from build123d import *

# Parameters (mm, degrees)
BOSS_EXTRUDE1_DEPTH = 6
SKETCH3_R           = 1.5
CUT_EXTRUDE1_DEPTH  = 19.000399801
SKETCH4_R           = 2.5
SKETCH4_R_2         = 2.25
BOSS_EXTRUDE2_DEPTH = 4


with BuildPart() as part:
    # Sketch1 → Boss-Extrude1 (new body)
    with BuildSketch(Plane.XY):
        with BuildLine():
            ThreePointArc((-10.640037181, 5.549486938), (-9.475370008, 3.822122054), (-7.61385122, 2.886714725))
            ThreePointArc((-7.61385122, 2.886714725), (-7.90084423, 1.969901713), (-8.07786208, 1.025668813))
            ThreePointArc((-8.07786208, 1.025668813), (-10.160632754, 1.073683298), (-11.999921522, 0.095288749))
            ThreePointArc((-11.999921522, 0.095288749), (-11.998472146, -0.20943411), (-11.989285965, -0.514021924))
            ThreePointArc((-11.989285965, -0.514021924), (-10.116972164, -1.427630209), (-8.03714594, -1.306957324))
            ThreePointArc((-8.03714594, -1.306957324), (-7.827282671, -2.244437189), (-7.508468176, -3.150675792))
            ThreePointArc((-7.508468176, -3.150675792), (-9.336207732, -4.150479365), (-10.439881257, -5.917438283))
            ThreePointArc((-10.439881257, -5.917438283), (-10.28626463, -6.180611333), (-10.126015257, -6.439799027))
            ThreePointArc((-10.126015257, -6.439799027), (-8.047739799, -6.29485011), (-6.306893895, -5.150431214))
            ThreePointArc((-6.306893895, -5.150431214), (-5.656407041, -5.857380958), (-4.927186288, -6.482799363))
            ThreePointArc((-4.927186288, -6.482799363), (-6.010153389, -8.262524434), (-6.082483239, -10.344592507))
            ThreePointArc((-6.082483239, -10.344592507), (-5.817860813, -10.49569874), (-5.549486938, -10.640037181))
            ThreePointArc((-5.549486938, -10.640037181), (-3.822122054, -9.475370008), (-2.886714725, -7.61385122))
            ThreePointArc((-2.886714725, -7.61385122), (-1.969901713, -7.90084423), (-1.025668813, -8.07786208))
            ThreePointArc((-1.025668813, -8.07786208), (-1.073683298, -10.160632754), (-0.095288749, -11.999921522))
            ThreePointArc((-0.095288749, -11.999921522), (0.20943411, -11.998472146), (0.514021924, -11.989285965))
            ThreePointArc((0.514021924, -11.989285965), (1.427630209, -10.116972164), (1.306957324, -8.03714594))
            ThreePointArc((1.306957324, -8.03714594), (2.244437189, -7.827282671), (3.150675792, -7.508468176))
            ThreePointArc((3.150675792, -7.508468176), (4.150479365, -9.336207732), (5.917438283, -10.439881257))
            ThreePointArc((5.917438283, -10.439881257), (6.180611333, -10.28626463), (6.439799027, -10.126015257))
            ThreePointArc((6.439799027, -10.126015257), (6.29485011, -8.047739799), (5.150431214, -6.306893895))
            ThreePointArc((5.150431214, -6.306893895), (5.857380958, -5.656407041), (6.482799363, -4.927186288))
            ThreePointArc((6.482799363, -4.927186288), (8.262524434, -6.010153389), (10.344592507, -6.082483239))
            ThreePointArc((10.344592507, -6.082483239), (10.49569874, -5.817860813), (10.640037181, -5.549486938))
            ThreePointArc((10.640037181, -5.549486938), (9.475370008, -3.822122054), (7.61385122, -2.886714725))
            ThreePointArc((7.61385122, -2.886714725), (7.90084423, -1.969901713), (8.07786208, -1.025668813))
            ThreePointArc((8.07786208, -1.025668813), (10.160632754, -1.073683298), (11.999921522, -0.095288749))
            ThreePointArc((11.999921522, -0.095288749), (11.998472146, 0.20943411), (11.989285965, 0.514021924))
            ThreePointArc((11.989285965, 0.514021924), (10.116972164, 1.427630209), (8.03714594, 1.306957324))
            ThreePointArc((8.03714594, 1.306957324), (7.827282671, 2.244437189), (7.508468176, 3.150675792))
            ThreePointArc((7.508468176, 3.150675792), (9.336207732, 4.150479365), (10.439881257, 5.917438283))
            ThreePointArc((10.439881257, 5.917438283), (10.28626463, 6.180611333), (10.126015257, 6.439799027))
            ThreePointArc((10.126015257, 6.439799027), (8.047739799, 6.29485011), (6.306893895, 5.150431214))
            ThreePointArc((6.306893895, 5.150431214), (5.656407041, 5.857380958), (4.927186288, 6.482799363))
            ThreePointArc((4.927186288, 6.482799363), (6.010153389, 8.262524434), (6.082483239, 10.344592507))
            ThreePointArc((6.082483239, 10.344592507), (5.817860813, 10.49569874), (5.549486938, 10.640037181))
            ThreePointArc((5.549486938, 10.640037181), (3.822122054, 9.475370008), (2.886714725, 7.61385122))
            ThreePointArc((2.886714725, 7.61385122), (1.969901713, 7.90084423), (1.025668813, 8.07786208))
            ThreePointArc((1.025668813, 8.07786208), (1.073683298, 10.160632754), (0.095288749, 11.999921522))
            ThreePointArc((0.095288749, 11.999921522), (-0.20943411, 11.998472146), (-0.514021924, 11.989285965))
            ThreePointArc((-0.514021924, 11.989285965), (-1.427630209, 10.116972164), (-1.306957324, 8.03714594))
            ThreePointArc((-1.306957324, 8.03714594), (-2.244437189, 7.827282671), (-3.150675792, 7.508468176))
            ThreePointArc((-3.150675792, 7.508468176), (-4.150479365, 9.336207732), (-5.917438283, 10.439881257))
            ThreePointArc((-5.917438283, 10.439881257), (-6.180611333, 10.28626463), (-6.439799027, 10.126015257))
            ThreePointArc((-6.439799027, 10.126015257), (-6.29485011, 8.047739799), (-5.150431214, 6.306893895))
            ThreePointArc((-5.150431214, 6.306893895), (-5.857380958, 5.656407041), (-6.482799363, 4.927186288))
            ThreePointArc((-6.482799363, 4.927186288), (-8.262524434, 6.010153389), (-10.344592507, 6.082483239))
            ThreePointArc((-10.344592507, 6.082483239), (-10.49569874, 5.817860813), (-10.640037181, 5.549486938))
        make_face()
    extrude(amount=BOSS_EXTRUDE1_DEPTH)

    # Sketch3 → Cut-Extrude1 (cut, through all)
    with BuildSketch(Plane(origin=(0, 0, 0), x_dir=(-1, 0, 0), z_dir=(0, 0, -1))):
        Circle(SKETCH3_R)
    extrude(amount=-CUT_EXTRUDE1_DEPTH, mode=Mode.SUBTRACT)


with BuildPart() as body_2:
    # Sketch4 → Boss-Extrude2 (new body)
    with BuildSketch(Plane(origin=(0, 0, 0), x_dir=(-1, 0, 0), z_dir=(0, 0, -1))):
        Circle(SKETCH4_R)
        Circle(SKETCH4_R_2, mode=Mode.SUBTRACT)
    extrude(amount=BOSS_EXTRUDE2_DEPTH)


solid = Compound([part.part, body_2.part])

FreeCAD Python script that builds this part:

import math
import FreeCAD as App
import Part
import Sketcher

V = App.Vector

doc = App.newDocument("Part")
body = doc.addObject("PartDesign::Body", "Body")

sketch1 = body.newObject("Sketcher::SketchObject", "Sketch")
sketch1.AttachmentSupport = (doc.getObject("XY_Plane"), [""])
sketch1.MapMode = "FlatFace"
sketch1.addGeometry([
    Part.ArcOfCircle(Part.Circle(V(-6.8, 6.9, 0), V(0, 0, 1), 4.1), math.radians(-161), math.radians(-102)),
    Part.ArcOfCircle(Part.Circle(V(0, 0, 0), V(0, 0, 1), 8.1), math.radians(159.24), math.radians(172.76)),
    Part.ArcOfCircle(Part.Circle(V(-9.2, -2.9, 0), V(0, 0, 1), 4.1), math.radians(74), math.radians(133)),
    Part.ArcOfCircle(Part.Circle(V(0, 0, 0), V(0, 0, 1), 12), math.radians(179.55), math.radians(182.45)),
    Part.ArcOfCircle(Part.Circle(V(-9.3, 2.6, 0), V(0, 0, 1), 4.1), math.radians(-131), math.radians(-72)),
    Part.ArcOfCircle(Part.Circle(V(0, 0, 0), V(0, 0, 1), 8.1), math.radians(-170.76), math.radians(-157.24)),
    Part.ArcOfCircle(Part.Circle(V(-6.5, -7.1, 0), V(0, 0, 1), 4.1), math.radians(104), math.radians(163)),
    Part.ArcOfCircle(Part.Circle(V(0, 0, 0), V(0, 0, 1), 12), math.radians(-150.45), math.radians(-147.55)),
    Part.ArcOfCircle(Part.Circle(V(-9.4, -2.4, 0), V(0, 0, 1), 4.1), math.radians(-101), math.radians(-42)),
    Part.ArcOfCircle(Part.Circle(V(0, 0, 0), V(0, 0, 1), 8.1), math.radians(-140.76), math.radians(-127.24)),
    Part.ArcOfCircle(Part.Circle(V(-2.1, -9.4, 0), V(0, 0, 1), 4.1), math.radians(134), math.radians(193)),
    Part.ArcOfCircle(Part.Circle(V(0, 0, 0), V(0, 0, 1), 12), math.radians(-120.45), math.radians(-117.55)),
    Part.ArcOfCircle(Part.Circle(V(-6.9, -6.8, 0), V(0, 0, 1), 4.1), math.radians(-71), math.radians(-12)),
    Part.ArcOfCircle(Part.Circle(V(0, 0, 0), V(0, 0, 1), 8.1), math.radians(-110.76), math.radians(-97.24)),
    Part.ArcOfCircle(Part.Circle(V(2.9, -9.2, 0), V(0, 0, 1), 4.1), math.radians(164), math.radians(223)),
    Part.ArcOfCircle(Part.Circle(V(0, 0, 0), V(0, 0, 1), 12), math.radians(-90.45), math.radians(-87.55)),
    Part.ArcOfCircle(Part.Circle(V(-2.6, -9.3, 0), V(0, 0, 1), 4.1), math.radians(-41), math.radians(18)),
    Part.ArcOfCircle(Part.Circle(V(0, 0, 0), V(0, 0, 1), 8.1), math.radians(-80.76), math.radians(-67.24)),
    Part.ArcOfCircle(Part.Circle(V(7.1, -6.5, 0), V(0, 0, 1), 4.1), math.radians(-166), math.radians(-107)),
    Part.ArcOfCircle(Part.Circle(V(0, 0, 0), V(0, 0, 1), 12), math.radians(-60.45), math.radians(-57.55)),
    Part.ArcOfCircle(Part.Circle(V(2.4, -9.4, 0), V(0, 0, 1), 4.1), math.radians(-11), math.radians(48)),
    Part.ArcOfCircle(Part.Circle(V(0, 0, 0), V(0, 0, 1), 8.1), math.radians(-50.76), math.radians(-37.24)),
    Part.ArcOfCircle(Part.Circle(V(9.4, -2.1, 0), V(0, 0, 1), 4.1), math.radians(-136), math.radians(-77)),
    Part.ArcOfCircle(Part.Circle(V(0, 0, 0), V(0, 0, 1), 12), math.radians(-30.45), math.radians(-27.55)),
    Part.ArcOfCircle(Part.Circle(V(6.8, -6.9, 0), V(0, 0, 1), 4.1), math.radians(19), math.radians(78)),
    Part.ArcOfCircle(Part.Circle(V(0, 0, 0), V(0, 0, 1), 8.1), math.radians(-20.76), math.radians(-7.24)),
    Part.ArcOfCircle(Part.Circle(V(9.2, 2.9, 0), V(0, 0, 1), 4.1), math.radians(-106), math.radians(-47)),
    Part.ArcOfCircle(Part.Circle(V(0, 0, 0), V(0, 0, 1), 12), math.radians(-0.45), math.radians(2.45)),
    Part.ArcOfCircle(Part.Circle(V(9.3, -2.6, 0), V(0, 0, 1), 4.1), math.radians(49), math.radians(108)),
    Part.ArcOfCircle(Part.Circle(V(0, 0, 0), V(0, 0, 1), 8.1), math.radians(9.24), math.radians(22.76)),
    Part.ArcOfCircle(Part.Circle(V(6.5, 7.1, 0), V(0, 0, 1), 4.1), math.radians(-76), math.radians(-17)),
    Part.ArcOfCircle(Part.Circle(V(0, 0, 0), V(0, 0, 1), 12), math.radians(29.55), math.radians(32.45)),
    Part.ArcOfCircle(Part.Circle(V(9.4, 2.4, 0), V(0, 0, 1), 4.1), math.radians(79), math.radians(138)),
    Part.ArcOfCircle(Part.Circle(V(0, 0, 0), V(0, 0, 1), 8.1), math.radians(39.24), math.radians(52.76)),
    Part.ArcOfCircle(Part.Circle(V(2.1, 9.4, 0), V(0, 0, 1), 4.1), math.radians(-46), math.radians(13)),
    Part.ArcOfCircle(Part.Circle(V(0, 0, 0), V(0, 0, 1), 12), math.radians(59.55), math.radians(62.45)),
    Part.ArcOfCircle(Part.Circle(V(6.9, 6.8, 0), V(0, 0, 1), 4.1), math.radians(109), math.radians(168)),
    Part.ArcOfCircle(Part.Circle(V(0, 0, 0), V(0, 0, 1), 8.1), math.radians(69.24), math.radians(82.76)),
    Part.ArcOfCircle(Part.Circle(V(-2.9, 9.2, 0), V(0, 0, 1), 4.1), math.radians(-16), math.radians(43)),
    Part.ArcOfCircle(Part.Circle(V(0, 0, 0), V(0, 0, 1), 12), math.radians(89.55), math.radians(92.45)),
    Part.ArcOfCircle(Part.Circle(V(2.6, 9.3, 0), V(0, 0, 1), 4.1), math.radians(139), math.radians(198)),
    Part.ArcOfCircle(Part.Circle(V(0, 0, 0), V(0, 0, 1), 8.1), math.radians(99.24), math.radians(112.76)),
    Part.ArcOfCircle(Part.Circle(V(-7.1, 6.5, 0), V(0, 0, 1), 4.1), math.radians(14), math.radians(73)),
    Part.ArcOfCircle(Part.Circle(V(0, 0, 0), V(0, 0, 1), 12), math.radians(119.55), math.radians(122.45)),
    Part.ArcOfCircle(Part.Circle(V(-2.4, 9.4, 0), V(0, 0, 1), 4.1), math.radians(169), math.radians(228)),
    Part.ArcOfCircle(Part.Circle(V(0, 0, 0), V(0, 0, 1), 8.1), math.radians(129.24), math.radians(142.76)),
    Part.ArcOfCircle(Part.Circle(V(-9.4, 2.1, 0), V(0, 0, 1), 4.1), math.radians(44), math.radians(103)),
    Part.ArcOfCircle(Part.Circle(V(0, 0, 0), V(0, 0, 1), 12), math.radians(149.55), math.radians(152.45)),
], False)
sketch1.addConstraint([
    Sketcher.Constraint("Coincident", 0, 2, 1, 1),
    Sketcher.Constraint("Coincident", 1, 2, 2, 1),
    Sketcher.Constraint("Coincident", 2, 2, 3, 1),
    Sketcher.Constraint("Coincident", 3, 2, 4, 1),
    Sketcher.Constraint("Coincident", 4, 2, 5, 1),
    Sketcher.Constraint("Coincident", 5, 2, 6, 1),
    Sketcher.Constraint("Coincident", 6, 2, 7, 1),
    Sketcher.Constraint("Coincident", 7, 2, 8, 1),
    Sketcher.Constraint("Coincident", 8, 2, 9, 1),
    Sketcher.Constraint("Coincident", 9, 2, 10, 1),
    Sketcher.Constraint("Coincident", 10, 2, 11, 1),
    Sketcher.Constraint("Coincident", 11, 2, 12, 1),
    Sketcher.Constraint("Coincident", 12, 2, 13, 1),
    Sketcher.Constraint("Coincident", 13, 2, 14, 1),
    Sketcher.Constraint("Coincident", 14, 2, 15, 1),
    Sketcher.Constraint("Coincident", 15, 2, 16, 1),
    Sketcher.Constraint("Coincident", 16, 2, 17, 1),
    Sketcher.Constraint("Coincident", 17, 2, 18, 1),
    Sketcher.Constraint("Coincident", 18, 2, 19, 1),
    Sketcher.Constraint("Coincident", 19, 2, 20, 1),
    Sketcher.Constraint("Coincident", 20, 2, 21, 1),
    Sketcher.Constraint("Coincident", 21, 2, 22, 1),
    Sketcher.Constraint("Coincident", 22, 2, 23, 1),
    Sketcher.Constraint("Coincident", 23, 2, 24, 1),
    Sketcher.Constraint("Coincident", 24, 2, 25, 1),
    Sketcher.Constraint("Coincident", 25, 2, 26, 1),
    Sketcher.Constraint("Coincident", 26, 2, 27, 1),
    Sketcher.Constraint("Coincident", 27, 2, 28, 1),
    Sketcher.Constraint("Coincident", 28, 2, 29, 1),
    Sketcher.Constraint("Coincident", 29, 2, 30, 1),
    Sketcher.Constraint("Coincident", 30, 2, 31, 1),
    Sketcher.Constraint("Coincident", 31, 2, 32, 1),
    Sketcher.Constraint("Coincident", 32, 2, 33, 1),
    Sketcher.Constraint("Coincident", 33, 2, 34, 1),
    Sketcher.Constraint("Coincident", 34, 2, 35, 1),
    Sketcher.Constraint("Coincident", 35, 2, 36, 1),
    Sketcher.Constraint("Coincident", 36, 2, 37, 1),
    Sketcher.Constraint("Coincident", 37, 2, 38, 1),
    Sketcher.Constraint("Coincident", 38, 2, 39, 1),
    Sketcher.Constraint("Coincident", 39, 2, 40, 1),
    Sketcher.Constraint("Coincident", 40, 2, 41, 1),
    Sketcher.Constraint("Coincident", 41, 2, 42, 1),
    Sketcher.Constraint("Coincident", 42, 2, 43, 1),
    Sketcher.Constraint("Coincident", 43, 2, 44, 1),
    Sketcher.Constraint("Coincident", 44, 2, 45, 1),
    Sketcher.Constraint("Coincident", 45, 2, 46, 1),
    Sketcher.Constraint("Coincident", 46, 2, 47, 1),
    Sketcher.Constraint("Coincident", 47, 2, 0, 1),
    Sketcher.Constraint("Coincident", 1, 3, -1, 1),
    Sketcher.Constraint("Coincident", 3, 3, -1, 1),
    Sketcher.Constraint("Coincident", 5, 3, -1, 1),
    Sketcher.Constraint("Coincident", 7, 3, -1, 1),
    Sketcher.Constraint("Coincident", 9, 3, -1, 1),
    Sketcher.Constraint("Coincident", 11, 3, -1, 1),
    Sketcher.Constraint("Coincident", 13, 3, -1, 1),
    Sketcher.Constraint("Coincident", 15, 3, -1, 1),
    Sketcher.Constraint("Coincident", 17, 3, -1, 1),
    Sketcher.Constraint("Coincident", 19, 3, -1, 1),
    Sketcher.Constraint("Coincident", 21, 3, -1, 1),
    Sketcher.Constraint("Coincident", 23, 3, -1, 1),
    Sketcher.Constraint("Coincident", 25, 3, -1, 1),
    Sketcher.Constraint("Coincident", 27, 3, -1, 1),
    Sketcher.Constraint("Coincident", 29, 3, -1, 1),
    Sketcher.Constraint("Coincident", 31, 3, -1, 1),
    Sketcher.Constraint("Coincident", 33, 3, -1, 1),
    Sketcher.Constraint("Coincident", 35, 3, -1, 1),
    Sketcher.Constraint("Coincident", 37, 3, -1, 1),
    Sketcher.Constraint("Coincident", 39, 3, -1, 1),
    Sketcher.Constraint("Coincident", 41, 3, -1, 1),
    Sketcher.Constraint("Coincident", 43, 3, -1, 1),
    Sketcher.Constraint("Coincident", 45, 3, -1, 1),
    Sketcher.Constraint("Coincident", 47, 3, -1, 1),
    Sketcher.Constraint("Equal", 0, 2),
    Sketcher.Constraint("Equal", 2, 4),
    Sketcher.Constraint("Equal", 1, 5),
    Sketcher.Constraint("Equal", 4, 6),
    Sketcher.Constraint("Equal", 3, 7),
    Sketcher.Constraint("Equal", 6, 8),
    Sketcher.Constraint("Equal", 5, 9),
    Sketcher.Constraint("Equal", 8, 10),
    Sketcher.Constraint("Equal", 7, 11),
    Sketcher.Constraint("Equal", 10, 12),
    Sketcher.Constraint("Equal", 9, 13),
    Sketcher.Constraint("Equal", 12, 14),
    Sketcher.Constraint("Equal", 11, 15),
    Sketcher.Constraint("Equal", 14, 16),
    Sketcher.Constraint("Equal", 13, 17),
    Sketcher.Constraint("Equal", 16, 18),
    Sketcher.Constraint("Equal", 15, 19),
    Sketcher.Constraint("Equal", 18, 20),
    Sketcher.Constraint("Equal", 17, 21),
    Sketcher.Constraint("Equal", 20, 22),
    Sketcher.Constraint("Equal", 19, 23),
    Sketcher.Constraint("Equal", 22, 24),
    Sketcher.Constraint("Equal", 21, 25),
    Sketcher.Constraint("Equal", 24, 26),
    Sketcher.Constraint("Equal", 23, 27),
    Sketcher.Constraint("Equal", 26, 28),
    Sketcher.Constraint("Equal", 25, 29),
    Sketcher.Constraint("Equal", 28, 30),
    Sketcher.Constraint("Equal", 27, 31),
    Sketcher.Constraint("Equal", 30, 32),
    Sketcher.Constraint("Equal", 29, 33),
    Sketcher.Constraint("Equal", 32, 34),
    Sketcher.Constraint("Equal", 31, 35),
    Sketcher.Constraint("Equal", 34, 36),
    Sketcher.Constraint("Equal", 33, 37),
    Sketcher.Constraint("Equal", 36, 38),
    Sketcher.Constraint("Equal", 35, 39),
    Sketcher.Constraint("Equal", 38, 40),
    Sketcher.Constraint("Equal", 37, 41),
    Sketcher.Constraint("Equal", 40, 42),
    Sketcher.Constraint("Equal", 39, 43),
    Sketcher.Constraint("Equal", 42, 44),
    Sketcher.Constraint("Equal", 41, 45),
    Sketcher.Constraint("Equal", 44, 46),
    Sketcher.Constraint("Equal", 43, 47),
    Sketcher.Constraint("Symmetric", 0, 3, 24, 3, -1, 1),
    Sketcher.Constraint("Symmetric", 2, 3, 26, 3, -1, 1),
    Sketcher.Constraint("Symmetric", 4, 3, 28, 3, -1, 1),
    Sketcher.Constraint("Symmetric", 6, 3, 30, 3, -1, 1),
    Sketcher.Constraint("Symmetric", 8, 3, 32, 3, -1, 1),
    Sketcher.Constraint("Symmetric", 10, 3, 34, 3, -1, 1),
    Sketcher.Constraint("Symmetric", 12, 3, 36, 3, -1, 1),
    Sketcher.Constraint("Symmetric", 14, 3, 38, 3, -1, 1),
    Sketcher.Constraint("Symmetric", 16, 3, 40, 3, -1, 1),
    Sketcher.Constraint("Symmetric", 18, 3, 42, 3, -1, 1),
    Sketcher.Constraint("Symmetric", 20, 3, 44, 3, -1, 1),
    Sketcher.Constraint("Symmetric", 22, 3, 46, 3, -1, 1),
    Sketcher.Constraint("Radius", 3, 12.0003),
    Sketcher.Constraint("Radius", 0, 4.114389),
    Sketcher.Constraint("Radius", 1, 8.142718),
    Sketcher.Constraint("DistanceY", 7, 2, -1, 1, 6.439799),
    Sketcher.Constraint("DistanceY", 9, 2, -1, 1, 6.482799),
    Sketcher.Constraint("DistanceX", -1, 1, 19, 2, 6.439799),
    Sketcher.Constraint("DistanceX", -1, 1, 21, 2, 6.482799),
    Sketcher.Constraint("DistanceY", 2, 3, -1, 1, 2.92961),
    Sketcher.Constraint("DistanceX", 6, 3, -1, 1, 6.51214),
    Sketcher.Constraint("DistanceY", 6, 3, -1, 1, 7.142608),
    Sketcher.Constraint("DistanceY", 10, 3, -1, 1, 9.44175),
    Sketcher.Constraint("DistanceX", -1, 1, 14, 3, 2.92961),
    Sketcher.Constraint("DistanceX", -1, 1, 18, 3, 7.142608),
    Sketcher.Constraint("DistanceY", 18, 3, -1, 1, 6.51214),
    Sketcher.Constraint("DistanceX", -1, 1, 22, 3, 9.44175),
    Sketcher.Constraint("DistanceX", 0, 2, -1, 1, 7.613851),
    Sketcher.Constraint("DistanceY", -1, 1, 1, 2, 1.025669),
    Sketcher.Constraint("DistanceY", 3, 2, -1, 1, 0.514022),
    Sketcher.Constraint("DistanceY", 8, 2, -1, 1, 5.150431),
    Sketcher.Constraint("DistanceY", 12, 2, -1, 1, 7.613851),
    Sketcher.Constraint("DistanceX", 13, 2, -1, 1, 1.025669),
    Sketcher.Constraint("DistanceX", -1, 1, 15, 2, 0.514022),
    Sketcher.Constraint("DistanceX", -1, 1, 20, 2, 5.150431),
    Sketcher.Constraint("DistanceX", 0, 3, -1, 1, 6.757446),
    Sketcher.Constraint("DistanceX", 4, 3, -1, 1, 9.307613),
    Sketcher.Constraint("DistanceX", 12, 3, -1, 1, 6.910987),
    Sketcher.Constraint("DistanceX", 16, 3, -1, 1, 2.606367),
])
pad1 = body.newObject("PartDesign::Pad", "Pad")
pad1.Profile = sketch1
pad1.Length = 6

sketch2 = body.newObject("Sketcher::SketchObject", "Sketch001")
sketch2.AttachmentSupport = (doc.getObject("XY_Plane"), [""])
sketch2.MapMode = "FlatFace"
sketch2.addGeometry(Part.Circle(V(0, 0, 0), V(0, 0, 1), 1.5), False)
sketch2.addConstraint([
    Sketcher.Constraint("Coincident", 0, 3, -1, 1),
    Sketcher.Constraint("Diameter", 0, 3.0),
])
pocket1 = body.newObject("PartDesign::Pocket", "Pocket")
pocket1.Profile = sketch2
pocket1.Type = "ThroughAll"
pocket1.Reversed = True
body2 = doc.addObject("PartDesign::Body", "Body001")

sketch3 = body2.newObject("Sketcher::SketchObject", "Sketch002")
sketch3.AttachmentSupport = (doc.getObject("XY_Plane001"), [""])
sketch3.MapMode = "FlatFace"
sketch3.addGeometry([
    Part.Circle(V(0, 0, 0), V(0, 0, 1), 2.5),
    Part.Circle(V(0, 0, 0), V(0, 0, 1), 2.2),
], False)
sketch3.addConstraint([
    Sketcher.Constraint("Coincident", 0, 3, -1, 1),
    Sketcher.Constraint("Coincident", 1, 3, -1, 1),
    Sketcher.Constraint("Diameter", 0, 5.0),
    Sketcher.Constraint("Diameter", 1, 4.5),
])
pad2 = body2.newObject("PartDesign::Pad", "Pad001")
pad2.Profile = sketch3
pad2.Length = 4
pad2.Reversed = True

doc.recompute()
